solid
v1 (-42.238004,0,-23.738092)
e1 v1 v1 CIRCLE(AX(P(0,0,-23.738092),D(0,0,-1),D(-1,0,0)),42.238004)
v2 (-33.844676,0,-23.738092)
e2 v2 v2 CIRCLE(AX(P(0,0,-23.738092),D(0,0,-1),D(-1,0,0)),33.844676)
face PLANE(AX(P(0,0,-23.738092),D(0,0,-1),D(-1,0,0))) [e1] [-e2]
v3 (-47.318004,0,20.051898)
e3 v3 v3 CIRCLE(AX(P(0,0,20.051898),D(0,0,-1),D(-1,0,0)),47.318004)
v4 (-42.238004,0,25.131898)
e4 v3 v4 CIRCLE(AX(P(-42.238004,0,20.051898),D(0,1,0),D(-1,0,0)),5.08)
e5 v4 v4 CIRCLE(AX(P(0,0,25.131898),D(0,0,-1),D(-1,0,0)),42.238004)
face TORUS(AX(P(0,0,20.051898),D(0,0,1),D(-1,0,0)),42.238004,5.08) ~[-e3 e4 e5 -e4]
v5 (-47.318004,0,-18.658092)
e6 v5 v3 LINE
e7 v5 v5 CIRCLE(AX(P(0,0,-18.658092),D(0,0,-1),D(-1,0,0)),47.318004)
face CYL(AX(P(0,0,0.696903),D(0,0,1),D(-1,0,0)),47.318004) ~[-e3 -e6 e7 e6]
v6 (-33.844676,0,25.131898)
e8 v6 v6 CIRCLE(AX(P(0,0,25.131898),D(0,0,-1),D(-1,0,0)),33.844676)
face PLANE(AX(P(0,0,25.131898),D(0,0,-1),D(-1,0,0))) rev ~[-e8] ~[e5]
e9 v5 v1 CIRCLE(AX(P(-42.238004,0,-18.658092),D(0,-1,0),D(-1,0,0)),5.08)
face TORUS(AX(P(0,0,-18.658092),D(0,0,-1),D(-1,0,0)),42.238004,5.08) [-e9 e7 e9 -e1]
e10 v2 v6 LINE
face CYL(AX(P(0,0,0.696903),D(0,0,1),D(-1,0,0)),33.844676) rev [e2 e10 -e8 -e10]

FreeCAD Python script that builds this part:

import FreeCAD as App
import Part
import Sketcher

V = App.Vector
Q = App.Units.Quantity


def edges_at(feature, points):
    """Names of the edges that pass closest to the given points."""
    edges = feature.Shape.Edges
    near = lambda p: min(range(len(edges)), key=lambda i: edges[i].distToShape(Part.Vertex(*p))[0])
    return sorted({f"Edge{near(p) + 1}" for p in points})

doc = App.newDocument("Part")
body = doc.addObject("PartDesign::Body", "Body")

# Sketch on XZ plane
sketch1 = doc.addObject("Sketcher::SketchObject", "Sketch")
body.addObject(sketch1)
sketch1.AttachmentSupport = (doc.XZ_Plane, [""])
sketch1.MapMode = "FlatFace"
sketch1.addGeometry(Part.LineSegment(V(-47.318004, 25.131898, 0), V(-47.318004, -23.738092, 0)), False)
sketch1.addGeometry(Part.LineSegment(V(-47.318004, -23.738092, 0), V(-33.844676, -23.738092, 0)), False)
sketch1.addGeometry(Part.LineSegment(V(-33.844676, -23.738092, 0), V(-33.844676, 25.131898, 0)), False)
sketch1.addGeometry(Part.LineSegment(V(-33.844676, 25.131898, 0), V(-47.318004, 25.131898, 0)), False)
sketch1.addConstraint(Sketcher.Constraint("Coincident", 0, 2, 1, 1))
sketch1.addConstraint(Sketcher.Constraint("Coincident", 1, 2, 2, 1))
sketch1.addConstraint(Sketcher.Constraint("Coincident", 2, 2, 3, 1))
sketch1.addConstraint(Sketcher.Constraint("Coincident", 3, 2, 0, 1))
sketch1.addConstraint(Sketcher.Constraint("Vertical", 0))
sketch1.addConstraint(Sketcher.Constraint("Horizontal", 1))
sketch1.addConstraint(Sketcher.Constraint("Vertical", 2))
sketch1.addConstraint(Sketcher.Constraint("Horizontal", 3))
sketch1.addConstraint(Sketcher.Constraint("DistanceX", 1, 1, 1, 2, 13.473328))
sketch1.addConstraint(Sketcher.Constraint("DistanceY", 0, 2, 0, 1, 48.86999))
sketch1.addConstraint(Sketcher.Constraint("DistanceX", 0, 2, -1, 1, 47.318004))
sketch1.addConstraint(Sketcher.Constraint("DistanceY", 0, 2, -1, 1, 23.738092))
revolution = doc.addObject("PartDesign::Revolution", "Revolution")
body.addObject(revolution)
revolution.Profile = sketch1
revolution.ReferenceAxis = (sketch1, ["V_Axis"])
revolution.Angle = 360
doc.recompute()

fillet = doc.addObject("PartDesign::Fillet", "Fillet")
body.addObject(fillet)
fillet.Base = (revolution, edges_at(revolution, [(47.318, 0, 25.132), (47.318, 0, -23.738)]))
fillet.Radius = Q("0.2 in")

doc.recompute()
